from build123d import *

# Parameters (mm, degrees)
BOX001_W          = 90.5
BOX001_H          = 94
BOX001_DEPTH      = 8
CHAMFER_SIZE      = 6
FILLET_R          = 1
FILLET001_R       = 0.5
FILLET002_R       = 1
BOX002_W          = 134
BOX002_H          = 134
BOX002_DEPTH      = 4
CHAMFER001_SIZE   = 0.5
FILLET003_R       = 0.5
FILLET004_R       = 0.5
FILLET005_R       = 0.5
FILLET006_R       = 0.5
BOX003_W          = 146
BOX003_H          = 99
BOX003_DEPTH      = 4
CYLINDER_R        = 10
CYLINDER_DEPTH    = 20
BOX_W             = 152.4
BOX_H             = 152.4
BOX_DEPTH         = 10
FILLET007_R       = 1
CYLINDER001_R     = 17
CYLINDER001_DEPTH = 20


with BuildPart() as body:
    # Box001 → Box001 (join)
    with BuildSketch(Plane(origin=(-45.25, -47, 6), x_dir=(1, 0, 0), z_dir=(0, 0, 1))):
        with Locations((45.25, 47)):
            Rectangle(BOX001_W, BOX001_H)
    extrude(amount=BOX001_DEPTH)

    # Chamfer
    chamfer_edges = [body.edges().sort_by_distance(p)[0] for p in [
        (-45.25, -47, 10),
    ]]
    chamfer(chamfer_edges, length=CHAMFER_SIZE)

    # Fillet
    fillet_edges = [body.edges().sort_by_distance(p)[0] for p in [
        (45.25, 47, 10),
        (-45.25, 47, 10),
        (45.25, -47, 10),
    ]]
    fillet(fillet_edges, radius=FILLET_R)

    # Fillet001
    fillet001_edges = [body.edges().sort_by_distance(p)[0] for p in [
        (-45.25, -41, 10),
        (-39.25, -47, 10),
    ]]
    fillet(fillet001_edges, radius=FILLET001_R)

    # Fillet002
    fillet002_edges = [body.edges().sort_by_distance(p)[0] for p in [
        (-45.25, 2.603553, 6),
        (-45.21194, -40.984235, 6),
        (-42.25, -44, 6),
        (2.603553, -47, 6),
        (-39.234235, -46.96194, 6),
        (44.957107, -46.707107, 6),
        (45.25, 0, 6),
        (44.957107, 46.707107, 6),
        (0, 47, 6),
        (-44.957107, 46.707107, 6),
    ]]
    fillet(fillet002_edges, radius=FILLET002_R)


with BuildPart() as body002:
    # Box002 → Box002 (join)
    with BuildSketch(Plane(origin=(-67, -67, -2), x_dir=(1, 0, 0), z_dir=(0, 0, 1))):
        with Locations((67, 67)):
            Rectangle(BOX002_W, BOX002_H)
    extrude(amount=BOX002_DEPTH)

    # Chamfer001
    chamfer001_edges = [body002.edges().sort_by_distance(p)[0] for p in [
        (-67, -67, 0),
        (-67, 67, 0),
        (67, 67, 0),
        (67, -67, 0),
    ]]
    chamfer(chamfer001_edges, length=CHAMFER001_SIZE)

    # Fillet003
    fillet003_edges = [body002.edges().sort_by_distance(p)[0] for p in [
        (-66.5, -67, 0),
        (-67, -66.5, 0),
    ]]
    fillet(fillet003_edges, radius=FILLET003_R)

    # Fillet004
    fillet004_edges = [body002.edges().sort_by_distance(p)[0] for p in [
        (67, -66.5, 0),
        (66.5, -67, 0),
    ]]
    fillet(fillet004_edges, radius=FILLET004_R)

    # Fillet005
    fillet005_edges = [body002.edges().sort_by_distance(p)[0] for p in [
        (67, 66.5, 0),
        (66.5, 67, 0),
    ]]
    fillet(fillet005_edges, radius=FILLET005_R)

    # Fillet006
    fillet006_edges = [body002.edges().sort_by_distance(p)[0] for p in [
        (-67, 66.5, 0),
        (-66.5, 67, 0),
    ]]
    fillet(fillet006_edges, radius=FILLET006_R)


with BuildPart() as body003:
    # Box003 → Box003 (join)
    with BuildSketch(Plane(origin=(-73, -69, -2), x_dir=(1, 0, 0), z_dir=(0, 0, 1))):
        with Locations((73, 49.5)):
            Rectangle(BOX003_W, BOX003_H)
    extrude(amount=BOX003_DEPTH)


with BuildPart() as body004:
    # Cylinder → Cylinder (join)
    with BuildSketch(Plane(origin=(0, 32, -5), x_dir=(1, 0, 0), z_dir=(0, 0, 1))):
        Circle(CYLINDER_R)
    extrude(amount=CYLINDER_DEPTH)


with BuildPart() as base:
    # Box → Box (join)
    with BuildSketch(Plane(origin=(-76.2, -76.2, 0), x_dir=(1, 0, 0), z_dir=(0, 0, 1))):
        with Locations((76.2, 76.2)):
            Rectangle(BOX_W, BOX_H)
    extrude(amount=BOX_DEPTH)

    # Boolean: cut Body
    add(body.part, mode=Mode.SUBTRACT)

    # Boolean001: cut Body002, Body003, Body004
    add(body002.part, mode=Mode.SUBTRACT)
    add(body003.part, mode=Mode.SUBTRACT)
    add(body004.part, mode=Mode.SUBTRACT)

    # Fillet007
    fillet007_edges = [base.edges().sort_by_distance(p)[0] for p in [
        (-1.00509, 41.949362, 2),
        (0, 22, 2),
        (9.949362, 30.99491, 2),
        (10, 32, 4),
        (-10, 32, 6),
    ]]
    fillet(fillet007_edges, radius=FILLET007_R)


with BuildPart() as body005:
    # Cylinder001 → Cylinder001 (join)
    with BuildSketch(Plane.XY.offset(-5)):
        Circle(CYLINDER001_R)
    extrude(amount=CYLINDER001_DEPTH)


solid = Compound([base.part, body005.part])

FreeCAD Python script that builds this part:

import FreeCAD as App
import Part
import Sketcher
Q = App.Units.Quantity


def edges_at(feature, points):
    """Names of the edges that pass closest to the given points."""
    edges = feature.Shape.Edges
    near = lambda p: min(range(len(edges)), key=lambda i: edges[i].distToShape(Part.Vertex(*p))[0])
    return sorted({f"Edge{near(p) + 1}" for p in points})


def add_polygon(sketch, points):
    """Adds a closed chain of lines whose ends are joined by coincident constraints."""
    first, n = sketch.GeometryCount, len(points)
    for a, b in zip(points, points[1:] + points[:1]):
        sketch.addGeometry(Part.LineSegment(App.Vector(*a, 0), App.Vector(*b, 0)), False)
    for i in range(n):
        sketch.addConstraint(Sketcher.Constraint("Coincident", first + i, 2, first + (i + 1) % n, 1))

doc = App.newDocument("Part")
params = doc.addObject("Spreadsheet::Sheet", "Params")
for row, (alias, value) in enumerate([
    ("sketch1_height", "94 mm"),
    ("sketch1_width", "90.5 mm"),
    ("pad1_length", "8 mm"),
    ("chamfer_size", "6 mm"),
    ("fillet_radius", "1 mm"),
    ("fillet2_radius", "0.5 mm"),
    ("fillet3_radius", "1 mm"),
    ("sketch2_width", "134 mm"),
    ("pad2_length", "4 mm"),
    ("chamfer2_size", "0.5 mm"),
    ("fillet4_radius", "0.5 mm"),
    ("fillet5_radius", "0.5 mm"),
    ("fillet6_radius", "0.5 mm"),
    ("fillet7_radius", "0.5 mm"),
    ("sketch3_width", "146 mm"),
    ("sketch3_height", "99 mm"),
    ("pad3_length", "4 mm"),
    ("sketch4_diameter", "20 mm"),
    ("pad4_length", "20 mm"),
    ("sketch5_width", "152.4 mm"),
    ("pad5_length", "10 mm"),
    ("fillet8_radius", "1 mm"),
    ("sketch6_diameter", "34 mm"),
    ("pad6_length", "20 mm"),
], start=1):
    params.set(f"A{row}", alias)
    params.set(f"B{row}", "=" + value)
    params.setAlias(f"B{row}", alias)

body = doc.addObject("PartDesign::Body", "Body")

sketch1 = doc.addObject("Sketcher::SketchObject", "Sketch")
body.addObject(sketch1)
sketch1.AttachmentSupport = (doc.XY_Plane, [""])
sketch1.MapMode = "FlatFace"
sketch1.AttachmentOffset = App.Placement(App.Vector(0, 0, 6), App.Rotation())
add_polygon(sketch1, [(-45.25, 47), (-45.25, -47), (45.25, -47), (45.25, 47)])
sketch1.addConstraint([
    Sketcher.Constraint("Vertical", 0),
    Sketcher.Constraint("Horizontal", 1),
    Sketcher.Constraint("Vertical", 2),
    Sketcher.Constraint("Horizontal", 3),
    Sketcher.Constraint("Symmetric", 0, 2, 2, 2, -1, 1),
    Sketcher.Constraint("DistanceY", 0, 2, 0, 1, Q("94 mm")),
    Sketcher.Constraint("DistanceX", 1, 1, 1, 2, Q("90.5 mm")),
])
sketch1.setExpression("Constraints[9]", "Params.sketch1_height")
sketch1.setExpression("Constraints[10]", "Params.sketch1_width")
pad1 = doc.addObject("PartDesign::Pad", "Pad")
body.addObject(pad1)
pad1.Profile = sketch1
pad1.setExpression("Length", "Params.pad1_length")
doc.recompute()

chamfer = doc.addObject("PartDesign::Chamfer", "Chamfer")
body.addObject(chamfer)
chamfer.Base = (pad1, edges_at(pad1, [(-45.25, -47, 10)]))
chamfer.setExpression("Size", "Params.chamfer_size")
doc.recompute()

fillet = doc.addObject("PartDesign::Fillet", "Fillet")
body.addObject(fillet)
fillet.Base = (chamfer, edges_at(chamfer, [(45.25, 47, 10), (-45.25, 47, 10), (45.25, -47, 10)]))
fillet.setExpression("Radius", "Params.fillet_radius")
doc.recompute()

fillet2 = doc.addObject("PartDesign::Fillet", "Fillet001")
body.addObject(fillet2)
fillet2.Base = (fillet, edges_at(fillet, [(-45.25, -41, 10), (-39.25, -47, 10)]))
fillet2.setExpression("Radius", "Params.fillet2_radius")
doc.recompute()

fillet3 = doc.addObject("PartDesign::Fillet", "Fillet002")
body.addObject(fillet3)
fillet3.Base = (fillet2, edges_at(fillet2, [
    (-45.25, 2.604, 6),
    (-45.212, -40.984, 6),
    (-42.25, -44, 6),
    (2.604, -47, 6),
    (-39.234, -46.962, 6),
    (44.957, -46.707, 6),
    (45.25, 0, 6),
    (44.957, 46.707, 6),
    (0, 47, 6),
    (-44.957, 46.707, 6),
]))
fillet3.setExpression("Radius", "Params.fillet3_radius")
body2 = doc.addObject("PartDesign::Body", "Body001")

sketch2 = doc.addObject("Sketcher::SketchObject", "Sketch001")
body2.addObject(sketch2)
sketch2.AttachmentSupport = (doc.getObject("XY_Plane001"), [""])
sketch2.MapMode = "FlatFace"
sketch2.AttachmentOffset = App.Placement(App.Vector(0, 0, -2), App.Rotation())
add_polygon(sketch2, [(-67, 67), (-67, -67), (67, -67), (67, 67)])
sketch2.addConstraint([
    Sketcher.Constraint("Vertical", 0),
    Sketcher.Constraint("Horizontal", 1),
    Sketcher.Constraint("Vertical", 2),
    Sketcher.Constraint("Horizontal", 3),
    Sketcher.Constraint("Symmetric", 0, 2, 2, 2, -1, 1),
    Sketcher.Constraint("Equal", 3, 0),
    Sketcher.Constraint("DistanceX", 1, 1, 1, 2, Q("134 mm")),
])
sketch2.setExpression("Constraints[10]", "Params.sketch2_width")
pad2 = doc.addObject("PartDesign::Pad", "Pad001")
body2.addObject(pad2)
pad2.Profile = sketch2
pad2.setExpression("Length", "Params.pad2_length")
doc.recompute()

chamfer2 = doc.addObject("PartDesign::Chamfer", "Chamfer001")
body2.addObject(chamfer2)
chamfer2.Base = (pad2, edges_at(pad2, [
    (-67, -67, 0),
    (-67, 67, 0),
    (67, 67, 0),
    (67, -67, 0),
]))
chamfer2.setExpression("Size", "Params.chamfer2_size")
doc.recompute()

fillet4 = doc.addObject("PartDesign::Fillet", "Fillet003")
body2.addObject(fillet4)
fillet4.Base = (chamfer2, edges_at(chamfer2, [(-66.5, -67, 0), (-67, -66.5, 0)]))
fillet4.setExpression("Radius", "Params.fillet4_radius")
doc.recompute()

fillet5 = doc.addObject("PartDesign::Fillet", "Fillet004")
body2.addObject(fillet5)
fillet5.Base = (fillet4, edges_at(fillet4, [(67, -66.5, 0), (66.5, -67, 0)]))
fillet5.setExpression("Radius", "Params.fillet5_radius")
doc.recompute()

fillet6 = doc.addObject("PartDesign::Fillet", "Fillet005")
body2.addObject(fillet6)
fillet6.Base = (fillet5, edges_at(fillet5, [(67, 66.5, 0), (66.5, 67, 0)]))
fillet6.setExpression("Radius", "Params.fillet6_radius")
doc.recompute()

fillet7 = doc.addObject("PartDesign::Fillet", "Fillet006")
body2.addObject(fillet7)
fillet7.Base = (fillet6, edges_at(fillet6, [(-67, 66.5, 0), (-66.5, 67, 0)]))
fillet7.setExpression("Radius", "Params.fillet7_radius")
body3 = doc.addObject("PartDesign::Body", "Body002")

sketch3 = doc.addObject("Sketcher::SketchObject", "Sketch002")
body3.addObject(sketch3)
sketch3.AttachmentSupport = (doc.getObject("XY_Plane002"), [""])
sketch3.MapMode = "FlatFace"
sketch3.AttachmentOffset = App.Placement(App.Vector(0, 0, -2), App.Rotation())
add_polygon(sketch3, [(-73, 30), (-73, -69), (73, -69), (73, 30)])
sketch3.addConstraint([
    Sketcher.Constraint("Vertical", 0),
    Sketcher.Constraint("Horizontal", 1),
    Sketcher.Constraint("Vertical", 2),
    Sketcher.Constraint("Horizontal", 3),
    Sketcher.Constraint("DistanceX", 1, 1, 1, 2, Q("146 mm")),
    Sketcher.Constraint("DistanceY", 0, 2, 0, 1, Q("99 mm")),
    Sketcher.Constraint("DistanceX", 0, 2, -1, 1, Q("73 mm")),
    Sketcher.Constraint("DistanceY", 0, 2, -1, 1, Q("69 mm")),
])
sketch3.setExpression("Constraints[8]", "Params.sketch3_width")
sketch3.setExpression("Constraints[9]", "Params.sketch3_height")
pad3 = doc.addObject("PartDesign::Pad", "Pad002")
body3.addObject(pad3)
pad3.Profile = sketch3
pad3.setExpression("Length", "Params.pad3_length")
body4 = doc.addObject("PartDesign::Body", "Body003")

sketch4 = doc.addObject("Sketcher::SketchObject", "Sketch003")
body4.addObject(sketch4)
sketch4.AttachmentSupport = (doc.getObject("XY_Plane003"), [""])
sketch4.MapMode = "FlatFace"
sketch4.AttachmentOffset = App.Placement(App.Vector(0, 0, -5), App.Rotation())
sketch4.addGeometry(Part.Circle(App.Vector(0, 32, 0), App.Vector(0, 0, 1), 10), False)
sketch4.addConstraint([
    Sketcher.Constraint("PointOnObject", 0, 3, -2),
    Sketcher.Constraint("Diameter", 0, Q("20 mm")),
    Sketcher.Constraint("DistanceY", -1, 1, 0, 3, Q("32 mm")),
])
sketch4.setExpression("Constraints[1]", "Params.sketch4_diameter")
pad4 = doc.addObject("PartDesign::Pad", "Pad003")
body4.addObject(pad4)
pad4.Profile = sketch4
pad4.setExpression("Length", "Params.pad4_length")
body5 = doc.addObject("PartDesign::Body", "Body004")

sketch5 = doc.addObject("Sketcher::SketchObject", "Sketch004")
body5.addObject(sketch5)
sketch5.AttachmentSupport = (doc.getObject("XY_Plane004"), [""])
sketch5.MapMode = "FlatFace"
add_polygon(sketch5, [(-76.2, 76.2), (-76.2, -76.2), (76.2, -76.2), (76.2, 76.2)])
sketch5.addConstraint([
    Sketcher.Constraint("Vertical", 0),
    Sketcher.Constraint("Horizontal", 1),
    Sketcher.Constraint("Vertical", 2),
    Sketcher.Constraint("Horizontal", 3),
    Sketcher.Constraint("Symmetric", 0, 2, 2, 2, -1, 1),
    Sketcher.Constraint("Equal", 3, 0),
    Sketcher.Constraint("DistanceX", 1, 1, 1, 2, Q("152.4 mm")),
])
sketch5.setExpression("Constraints[10]", "Params.sketch5_width")
pad5 = doc.addObject("PartDesign::Pad", "Pad004")
body5.addObject(pad5)
pad5.Profile = sketch5
pad5.setExpression("Length", "Params.pad5_length")
doc.recompute()

boolean = doc.addObject("PartDesign::Boolean", "Boolean")
body5.addObject(boolean)
boolean.Type = "Cut"
boolean.addObjects([body])
doc.recompute()

boolean2 = doc.addObject("PartDesign::Boolean", "Boolean001")
body5.addObject(boolean2)
boolean2.Type = "Cut"
boolean2.addObjects([body2])
doc.recompute()

boolean3 = doc.addObject("PartDesign::Boolean", "Boolean002")
body5.addObject(boolean3)
boolean3.Type = "Cut"
boolean3.addObjects([body3])
doc.recompute()

boolean4 = doc.addObject("PartDesign::Boolean", "Boolean003")
body5.addObject(boolean4)
boolean4.Type = "Cut"
boolean4.addObjects([body4])
doc.recompute()

fillet8 = doc.addObject("PartDesign::Fillet", "Fillet007")
body5.addObject(fillet8)
fillet8.Base = (boolean4, edges_at(boolean4, [
    (-10, 32, 2),
    (-10, 32, 2),
    (-10, 32, 2),
    (10, 32, 4),
    (-10, 32, 6),
]))
fillet8.setExpression("Radius", "Params.fillet8_radius")
body6 = doc.addObject("PartDesign::Body", "Body005")

sketch6 = doc.addObject("Sketcher::SketchObject", "Sketch005")
body6.addObject(sketch6)
sketch6.AttachmentSupport = (doc.getObject("XY_Plane005"), [""])
sketch6.MapMode = "FlatFace"
sketch6.AttachmentOffset = App.Placement(App.Vector(0, 0, -5), App.Rotation())
sketch6.addGeometry(Part.Circle(App.Vector(0, 0, 0), App.Vector(0, 0, 1), 17), False)
sketch6.addConstraint([
    Sketcher.Constraint("Coincident", 0, 3, -1, 1),
    Sketcher.Constraint("Diameter", 0, Q("34 mm")),
])
sketch6.setExpression("Constraints[1]", "Params.sketch6_diameter")
pad6 = doc.addObject("PartDesign::Pad", "Pad005")
body6.addObject(pad6)
pad6.Profile = sketch6
pad6.setExpression("Length", "Params.pad6_length")

doc.recompute()
